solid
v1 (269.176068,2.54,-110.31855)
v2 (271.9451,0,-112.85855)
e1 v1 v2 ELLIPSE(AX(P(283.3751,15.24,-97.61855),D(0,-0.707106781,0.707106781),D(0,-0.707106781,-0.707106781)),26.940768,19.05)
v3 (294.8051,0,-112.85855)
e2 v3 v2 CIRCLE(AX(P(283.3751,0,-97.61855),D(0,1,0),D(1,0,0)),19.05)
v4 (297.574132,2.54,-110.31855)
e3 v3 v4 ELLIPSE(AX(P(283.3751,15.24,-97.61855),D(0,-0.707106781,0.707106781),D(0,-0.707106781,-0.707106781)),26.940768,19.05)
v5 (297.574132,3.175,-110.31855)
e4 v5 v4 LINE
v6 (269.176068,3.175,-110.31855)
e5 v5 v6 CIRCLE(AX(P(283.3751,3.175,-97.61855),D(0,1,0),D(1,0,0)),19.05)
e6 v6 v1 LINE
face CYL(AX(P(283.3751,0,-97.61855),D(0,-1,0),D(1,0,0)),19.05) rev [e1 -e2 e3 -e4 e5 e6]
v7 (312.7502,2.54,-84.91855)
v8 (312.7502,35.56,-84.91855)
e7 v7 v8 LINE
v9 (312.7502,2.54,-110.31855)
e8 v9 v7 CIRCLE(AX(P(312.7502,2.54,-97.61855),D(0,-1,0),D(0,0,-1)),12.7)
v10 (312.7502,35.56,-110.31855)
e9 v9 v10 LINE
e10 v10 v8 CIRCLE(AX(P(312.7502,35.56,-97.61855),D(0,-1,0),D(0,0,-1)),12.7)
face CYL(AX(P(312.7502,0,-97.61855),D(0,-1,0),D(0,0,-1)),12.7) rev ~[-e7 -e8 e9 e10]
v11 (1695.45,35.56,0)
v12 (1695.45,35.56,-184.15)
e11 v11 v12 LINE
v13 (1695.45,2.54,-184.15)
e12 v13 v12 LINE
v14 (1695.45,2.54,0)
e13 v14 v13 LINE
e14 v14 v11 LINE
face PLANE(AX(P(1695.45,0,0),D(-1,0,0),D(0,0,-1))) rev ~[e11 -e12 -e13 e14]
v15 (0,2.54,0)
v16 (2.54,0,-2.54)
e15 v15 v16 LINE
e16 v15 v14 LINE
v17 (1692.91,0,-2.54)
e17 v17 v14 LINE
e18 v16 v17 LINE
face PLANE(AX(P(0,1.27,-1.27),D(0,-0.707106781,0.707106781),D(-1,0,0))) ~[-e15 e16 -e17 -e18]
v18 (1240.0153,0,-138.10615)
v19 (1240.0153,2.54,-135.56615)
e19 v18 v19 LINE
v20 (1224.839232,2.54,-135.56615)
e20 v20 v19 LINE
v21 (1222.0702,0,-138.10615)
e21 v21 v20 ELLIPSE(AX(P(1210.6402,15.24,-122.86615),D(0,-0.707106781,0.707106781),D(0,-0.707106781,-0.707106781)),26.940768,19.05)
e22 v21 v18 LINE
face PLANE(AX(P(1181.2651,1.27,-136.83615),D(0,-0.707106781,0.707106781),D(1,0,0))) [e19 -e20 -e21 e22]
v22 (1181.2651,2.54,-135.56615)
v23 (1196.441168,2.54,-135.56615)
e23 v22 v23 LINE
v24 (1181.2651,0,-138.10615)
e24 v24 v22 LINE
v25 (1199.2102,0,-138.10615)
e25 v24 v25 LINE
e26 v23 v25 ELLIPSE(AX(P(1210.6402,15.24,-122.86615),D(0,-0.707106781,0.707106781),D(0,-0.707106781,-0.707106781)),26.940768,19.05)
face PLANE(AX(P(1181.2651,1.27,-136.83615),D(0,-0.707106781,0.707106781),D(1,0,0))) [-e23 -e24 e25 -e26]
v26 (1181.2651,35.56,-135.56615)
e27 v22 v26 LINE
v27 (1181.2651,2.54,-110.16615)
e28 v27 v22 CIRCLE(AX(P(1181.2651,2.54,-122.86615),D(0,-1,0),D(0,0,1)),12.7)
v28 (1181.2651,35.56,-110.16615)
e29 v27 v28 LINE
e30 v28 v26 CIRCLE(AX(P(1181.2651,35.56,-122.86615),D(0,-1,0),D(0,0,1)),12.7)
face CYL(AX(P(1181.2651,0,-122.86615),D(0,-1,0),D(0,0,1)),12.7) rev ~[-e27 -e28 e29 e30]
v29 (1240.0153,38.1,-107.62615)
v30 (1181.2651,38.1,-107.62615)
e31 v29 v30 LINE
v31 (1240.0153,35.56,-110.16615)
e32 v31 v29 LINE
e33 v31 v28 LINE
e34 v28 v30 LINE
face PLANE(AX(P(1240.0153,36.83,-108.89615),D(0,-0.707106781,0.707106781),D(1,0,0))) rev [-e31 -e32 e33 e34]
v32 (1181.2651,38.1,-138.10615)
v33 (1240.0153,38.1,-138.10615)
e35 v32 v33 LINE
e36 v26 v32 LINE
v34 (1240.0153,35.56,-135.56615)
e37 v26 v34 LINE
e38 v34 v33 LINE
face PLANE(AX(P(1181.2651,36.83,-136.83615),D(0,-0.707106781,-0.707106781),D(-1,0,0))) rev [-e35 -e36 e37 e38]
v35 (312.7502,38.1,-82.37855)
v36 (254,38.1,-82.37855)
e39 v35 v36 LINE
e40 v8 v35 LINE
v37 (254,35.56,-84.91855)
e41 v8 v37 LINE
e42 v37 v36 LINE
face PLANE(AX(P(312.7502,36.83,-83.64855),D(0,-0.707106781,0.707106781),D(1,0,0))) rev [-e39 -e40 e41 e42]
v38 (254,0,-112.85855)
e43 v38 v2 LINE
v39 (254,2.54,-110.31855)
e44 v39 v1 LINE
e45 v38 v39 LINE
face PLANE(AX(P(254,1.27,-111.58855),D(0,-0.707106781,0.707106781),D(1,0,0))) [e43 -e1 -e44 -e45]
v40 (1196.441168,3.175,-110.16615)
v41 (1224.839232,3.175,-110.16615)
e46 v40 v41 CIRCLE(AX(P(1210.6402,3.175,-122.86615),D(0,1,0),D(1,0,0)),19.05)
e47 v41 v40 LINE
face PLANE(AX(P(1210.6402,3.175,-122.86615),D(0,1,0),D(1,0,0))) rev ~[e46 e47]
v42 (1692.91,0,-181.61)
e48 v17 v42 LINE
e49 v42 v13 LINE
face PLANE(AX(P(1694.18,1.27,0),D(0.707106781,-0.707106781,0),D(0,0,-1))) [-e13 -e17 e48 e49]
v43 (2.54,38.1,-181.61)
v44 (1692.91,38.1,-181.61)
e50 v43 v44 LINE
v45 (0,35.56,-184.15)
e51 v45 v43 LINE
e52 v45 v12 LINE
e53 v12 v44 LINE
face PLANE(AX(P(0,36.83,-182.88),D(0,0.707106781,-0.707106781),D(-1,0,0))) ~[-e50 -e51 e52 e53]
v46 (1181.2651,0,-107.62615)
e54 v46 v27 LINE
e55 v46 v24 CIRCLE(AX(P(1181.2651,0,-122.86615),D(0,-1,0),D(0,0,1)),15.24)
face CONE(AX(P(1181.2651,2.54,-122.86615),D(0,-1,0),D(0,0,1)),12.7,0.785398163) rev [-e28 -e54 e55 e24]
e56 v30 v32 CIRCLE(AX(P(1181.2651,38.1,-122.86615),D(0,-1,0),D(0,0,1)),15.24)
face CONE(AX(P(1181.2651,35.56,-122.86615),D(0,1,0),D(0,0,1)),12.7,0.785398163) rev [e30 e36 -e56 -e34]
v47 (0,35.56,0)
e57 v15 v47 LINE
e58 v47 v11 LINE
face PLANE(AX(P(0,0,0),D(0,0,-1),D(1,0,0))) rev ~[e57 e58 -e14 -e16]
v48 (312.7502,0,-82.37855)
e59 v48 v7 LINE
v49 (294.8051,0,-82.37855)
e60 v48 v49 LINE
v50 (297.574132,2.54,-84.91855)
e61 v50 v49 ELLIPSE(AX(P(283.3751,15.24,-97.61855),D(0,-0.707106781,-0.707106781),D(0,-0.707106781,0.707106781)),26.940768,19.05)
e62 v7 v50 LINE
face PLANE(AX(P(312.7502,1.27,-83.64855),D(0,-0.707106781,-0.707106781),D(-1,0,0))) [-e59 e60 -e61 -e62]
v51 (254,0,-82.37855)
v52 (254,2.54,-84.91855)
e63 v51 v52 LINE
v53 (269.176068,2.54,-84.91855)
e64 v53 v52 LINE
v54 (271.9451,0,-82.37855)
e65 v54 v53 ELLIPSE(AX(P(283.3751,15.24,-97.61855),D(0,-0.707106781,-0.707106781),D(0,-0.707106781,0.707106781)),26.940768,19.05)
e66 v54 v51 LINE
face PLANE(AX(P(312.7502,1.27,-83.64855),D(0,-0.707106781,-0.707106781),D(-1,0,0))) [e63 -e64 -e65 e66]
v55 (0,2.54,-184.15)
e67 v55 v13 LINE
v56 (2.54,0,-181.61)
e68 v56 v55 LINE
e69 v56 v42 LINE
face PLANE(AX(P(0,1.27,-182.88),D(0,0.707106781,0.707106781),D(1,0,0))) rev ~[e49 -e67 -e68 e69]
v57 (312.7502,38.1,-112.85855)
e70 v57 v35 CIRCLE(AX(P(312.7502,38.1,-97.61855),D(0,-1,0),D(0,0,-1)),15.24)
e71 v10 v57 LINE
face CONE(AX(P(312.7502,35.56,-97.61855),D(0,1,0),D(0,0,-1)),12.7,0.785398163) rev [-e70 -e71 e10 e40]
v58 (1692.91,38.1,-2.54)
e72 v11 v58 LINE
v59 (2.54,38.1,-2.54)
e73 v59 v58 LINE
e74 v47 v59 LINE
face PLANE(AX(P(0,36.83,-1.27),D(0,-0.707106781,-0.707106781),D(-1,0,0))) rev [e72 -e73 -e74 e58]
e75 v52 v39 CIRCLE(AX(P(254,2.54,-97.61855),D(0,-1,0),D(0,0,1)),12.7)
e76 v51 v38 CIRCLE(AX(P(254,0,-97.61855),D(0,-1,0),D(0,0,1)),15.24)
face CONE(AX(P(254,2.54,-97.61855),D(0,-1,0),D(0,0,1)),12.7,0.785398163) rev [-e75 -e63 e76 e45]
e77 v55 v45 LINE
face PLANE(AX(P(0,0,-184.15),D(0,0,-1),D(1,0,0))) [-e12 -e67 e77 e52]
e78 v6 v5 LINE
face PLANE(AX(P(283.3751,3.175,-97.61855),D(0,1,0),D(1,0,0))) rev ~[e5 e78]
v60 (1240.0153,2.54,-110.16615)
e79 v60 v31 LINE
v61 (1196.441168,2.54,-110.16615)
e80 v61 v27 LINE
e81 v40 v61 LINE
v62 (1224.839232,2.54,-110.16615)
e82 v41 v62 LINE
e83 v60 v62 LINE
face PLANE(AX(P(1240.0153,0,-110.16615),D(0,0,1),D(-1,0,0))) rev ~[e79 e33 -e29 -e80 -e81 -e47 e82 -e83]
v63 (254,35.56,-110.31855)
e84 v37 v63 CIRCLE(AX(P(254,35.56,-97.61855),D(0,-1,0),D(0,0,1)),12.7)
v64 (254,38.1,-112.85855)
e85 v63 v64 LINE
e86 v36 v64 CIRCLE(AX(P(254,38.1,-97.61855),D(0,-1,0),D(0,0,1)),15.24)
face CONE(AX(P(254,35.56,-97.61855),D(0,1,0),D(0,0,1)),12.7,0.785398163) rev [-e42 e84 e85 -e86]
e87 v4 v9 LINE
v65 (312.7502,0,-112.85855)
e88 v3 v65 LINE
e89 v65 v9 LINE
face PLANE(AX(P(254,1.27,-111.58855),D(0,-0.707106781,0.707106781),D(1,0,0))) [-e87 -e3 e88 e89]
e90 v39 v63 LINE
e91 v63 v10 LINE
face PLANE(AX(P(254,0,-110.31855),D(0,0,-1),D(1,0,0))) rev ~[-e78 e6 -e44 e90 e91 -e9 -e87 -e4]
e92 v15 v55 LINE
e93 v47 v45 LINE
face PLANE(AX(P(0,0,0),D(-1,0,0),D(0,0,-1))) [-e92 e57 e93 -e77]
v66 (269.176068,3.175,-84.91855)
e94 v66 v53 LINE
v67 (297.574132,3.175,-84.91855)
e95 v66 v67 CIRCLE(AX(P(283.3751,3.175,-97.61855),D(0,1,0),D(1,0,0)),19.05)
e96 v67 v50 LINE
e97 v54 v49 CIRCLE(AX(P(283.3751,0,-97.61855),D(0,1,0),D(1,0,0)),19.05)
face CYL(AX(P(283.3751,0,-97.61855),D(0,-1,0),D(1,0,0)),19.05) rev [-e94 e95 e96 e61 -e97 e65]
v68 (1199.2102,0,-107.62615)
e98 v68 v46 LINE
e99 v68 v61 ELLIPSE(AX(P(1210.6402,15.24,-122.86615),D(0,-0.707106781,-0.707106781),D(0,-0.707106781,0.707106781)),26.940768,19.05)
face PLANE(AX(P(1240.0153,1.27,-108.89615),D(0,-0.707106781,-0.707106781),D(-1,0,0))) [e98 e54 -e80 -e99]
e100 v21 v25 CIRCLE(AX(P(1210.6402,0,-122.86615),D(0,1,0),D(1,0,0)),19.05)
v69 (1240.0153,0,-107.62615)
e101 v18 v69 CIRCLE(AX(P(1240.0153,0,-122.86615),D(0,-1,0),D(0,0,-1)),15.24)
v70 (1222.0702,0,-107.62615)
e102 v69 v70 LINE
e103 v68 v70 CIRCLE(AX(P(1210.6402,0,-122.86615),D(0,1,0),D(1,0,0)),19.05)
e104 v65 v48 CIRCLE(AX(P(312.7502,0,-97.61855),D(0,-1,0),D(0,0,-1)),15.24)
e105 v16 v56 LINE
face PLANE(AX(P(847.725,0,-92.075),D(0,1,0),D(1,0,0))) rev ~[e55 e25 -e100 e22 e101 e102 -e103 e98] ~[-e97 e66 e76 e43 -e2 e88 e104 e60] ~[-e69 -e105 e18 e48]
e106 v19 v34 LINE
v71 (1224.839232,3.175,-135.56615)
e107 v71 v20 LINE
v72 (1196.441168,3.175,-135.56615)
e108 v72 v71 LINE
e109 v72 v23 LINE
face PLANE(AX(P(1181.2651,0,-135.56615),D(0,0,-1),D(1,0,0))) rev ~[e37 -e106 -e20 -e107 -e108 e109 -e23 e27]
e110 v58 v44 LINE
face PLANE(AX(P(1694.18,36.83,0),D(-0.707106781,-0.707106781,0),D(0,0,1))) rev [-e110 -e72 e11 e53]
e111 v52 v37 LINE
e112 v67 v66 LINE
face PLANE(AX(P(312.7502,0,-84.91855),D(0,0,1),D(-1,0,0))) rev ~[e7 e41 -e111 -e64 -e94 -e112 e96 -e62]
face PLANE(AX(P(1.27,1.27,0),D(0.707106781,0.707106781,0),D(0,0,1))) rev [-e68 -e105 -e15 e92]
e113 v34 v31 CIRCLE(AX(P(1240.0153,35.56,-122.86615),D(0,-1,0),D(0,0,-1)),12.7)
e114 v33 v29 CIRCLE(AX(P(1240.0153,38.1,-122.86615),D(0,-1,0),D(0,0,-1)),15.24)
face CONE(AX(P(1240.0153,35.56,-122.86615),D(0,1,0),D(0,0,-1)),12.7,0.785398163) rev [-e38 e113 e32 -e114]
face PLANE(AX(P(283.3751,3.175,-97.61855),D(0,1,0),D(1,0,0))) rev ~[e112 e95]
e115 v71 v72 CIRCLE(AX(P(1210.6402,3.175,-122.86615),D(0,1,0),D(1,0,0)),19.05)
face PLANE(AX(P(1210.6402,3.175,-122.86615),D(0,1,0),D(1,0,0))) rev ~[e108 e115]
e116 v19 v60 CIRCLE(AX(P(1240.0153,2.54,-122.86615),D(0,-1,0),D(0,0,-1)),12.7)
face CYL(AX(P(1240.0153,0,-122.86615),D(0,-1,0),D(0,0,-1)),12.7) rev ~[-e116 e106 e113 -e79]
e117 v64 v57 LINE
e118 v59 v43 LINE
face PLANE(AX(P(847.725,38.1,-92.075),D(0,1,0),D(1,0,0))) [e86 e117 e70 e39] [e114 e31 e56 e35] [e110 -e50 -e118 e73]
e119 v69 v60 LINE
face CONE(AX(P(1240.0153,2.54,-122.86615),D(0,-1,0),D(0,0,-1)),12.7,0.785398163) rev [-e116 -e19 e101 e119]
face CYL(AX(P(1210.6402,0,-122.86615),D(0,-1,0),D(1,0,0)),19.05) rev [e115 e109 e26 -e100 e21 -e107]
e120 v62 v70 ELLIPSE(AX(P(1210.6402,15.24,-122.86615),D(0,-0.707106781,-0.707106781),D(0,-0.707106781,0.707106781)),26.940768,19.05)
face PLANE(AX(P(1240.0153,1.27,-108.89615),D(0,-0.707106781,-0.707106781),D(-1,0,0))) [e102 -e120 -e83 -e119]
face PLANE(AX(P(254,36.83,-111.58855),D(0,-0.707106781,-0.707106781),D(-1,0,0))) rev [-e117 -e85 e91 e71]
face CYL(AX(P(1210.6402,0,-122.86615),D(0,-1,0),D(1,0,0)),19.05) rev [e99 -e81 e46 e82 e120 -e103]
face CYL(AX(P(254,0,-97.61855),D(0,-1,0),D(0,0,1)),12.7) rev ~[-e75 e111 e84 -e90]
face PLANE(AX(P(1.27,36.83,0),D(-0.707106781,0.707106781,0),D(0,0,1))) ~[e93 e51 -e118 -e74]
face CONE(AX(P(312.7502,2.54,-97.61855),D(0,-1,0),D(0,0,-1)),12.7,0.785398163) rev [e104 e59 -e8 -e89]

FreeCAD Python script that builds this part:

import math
import FreeCAD as App
import Part
import Sketcher
from FreeCAD import Vector
Q = App.Units.Quantity


def edges_at(feature, points):
    """Names of the edges that pass closest to the given points."""
    edges = feature.Shape.Edges
    near = lambda p: min(range(len(edges)), key=lambda i: edges[i].distToShape(Part.Vertex(*p))[0])
    return sorted({f"Edge{near(p) + 1}" for p in points})


def add_polygon(sketch, points):
    """Adds a closed chain of lines whose ends are joined by coincident constraints."""
    first, n = sketch.GeometryCount, len(points)
    for a, b in zip(points, points[1:] + points[:1]):
        sketch.addGeometry(Part.LineSegment(App.Vector(*a, 0), App.Vector(*b, 0)), False)
    for i in range(n):
        sketch.addConstraint(Sketcher.Constraint("Coincident", first + i, 2, first + (i + 1) % n, 1))

doc = App.newDocument("Part")
body = doc.addObject("PartDesign::Body", "Body")

# Sketch on XZ plane
sketch1 = body.newObject("Sketcher::SketchObject", "Sketch")
sketch1.AttachmentSupport = (doc.getObject("XZ_Plane"), [""])
sketch1.MapMode = "FlatFace"
add_polygon(sketch1, [(0, -184), (0, 0), (1695, 0), (1695, -184)])  # lines 0-3
sketch1.addGeometry(Part.ArcOfCircle(Part.Circle(Vector(254, -98, 0), Vector(0, 0, 1), 13), math.radians(90), math.radians(270)), False)  # 4
sketch1.addGeometry(Part.LineSegment(Vector(254, -110, 0), Vector(313, -110, 0)), False)  # 5
sketch1.addGeometry(Part.ArcOfCircle(Part.Circle(Vector(313, -98, 0), Vector(0, 0, 1), 13), math.radians(-90), math.radians(90)), False)  # 6
sketch1.addGeometry(Part.LineSegment(Vector(313, -85, 0), Vector(254, -85, 0)), False)  # 7
sketch1.addGeometry(Part.ArcOfCircle(Part.Circle(Vector(1240, -123, 0), Vector(0, 0, 1), 13), math.radians(-90), math.radians(90)), False)  # 8
sketch1.addGeometry(Part.LineSegment(Vector(1240, -110, 0), Vector(1181, -110, 0)), False)  # 9
sketch1.addGeometry(Part.ArcOfCircle(Part.Circle(Vector(1181, -123, 0), Vector(0, 0, 1), 13), math.radians(90), math.radians(270)), False)  # 10
sketch1.addGeometry(Part.LineSegment(Vector(1181, -136, 0), Vector(1240, -136, 0)), False)  # 11
sketch1.addConstraint(Sketcher.Constraint("Tangent", 4, 2, 5, 1))
sketch1.addConstraint(Sketcher.Constraint("Tangent", 5, 2, 6, 1))
sketch1.addConstraint(Sketcher.Constraint("Tangent", 6, 2, 7, 1))
sketch1.addConstraint(Sketcher.Constraint("Tangent", 7, 2, 4, 1))
sketch1.addConstraint(Sketcher.Constraint("Tangent", 8, 2, 9, 1))
sketch1.addConstraint(Sketcher.Constraint("Tangent", 9, 2, 10, 1))
sketch1.addConstraint(Sketcher.Constraint("Tangent", 10, 2, 11, 1))
sketch1.addConstraint(Sketcher.Constraint("Tangent", 11, 2, 8, 1))
sketch1.addConstraint(Sketcher.Constraint("Vertical", 0))
sketch1.addConstraint(Sketcher.Constraint("Horizontal", 1))
sketch1.addConstraint(Sketcher.Constraint("Vertical", 2))
sketch1.addConstraint(Sketcher.Constraint("Horizontal", 3))
sketch1.addConstraint(Sketcher.Constraint("Horizontal", 5))
sketch1.addConstraint(Sketcher.Constraint("Horizontal", 7))
sketch1.addConstraint(Sketcher.Constraint("Horizontal", 9))
sketch1.addConstraint(Sketcher.Constraint("Horizontal", 11))
sketch1.addConstraint(Sketcher.Constraint("Coincident", 0, 2, -1, 1))
sketch1.addConstraint(Sketcher.Constraint("Equal", 6, 8))
sketch1.addConstraint(Sketcher.Constraint("Equal", 7, 9))
sketch1.addConstraint(Sketcher.Constraint("Radius", 4, Q("0.5 in")))
sketch1.addConstraint(Sketcher.Constraint("DistanceX", -1, 1, 4, 3, Q("10 in")))
sketch1.addConstraint(Sketcher.Constraint("DistanceX", 1, 1, 1, 2, Q("66.75 in")))
sketch1.addConstraint(Sketcher.Constraint("DistanceY", 0, 1, 0, 2, Q("7.25 in")))
sketch1.addConstraint(Sketcher.Constraint("DistanceX", 5, 1, 5, 2, Q("2.313 in")))
sketch1.addConstraint(Sketcher.Constraint("DistanceY", 8, 3, 6, 3, Q("0.994 in")))
sketch1.addConstraint(Sketcher.Constraint("DistanceX", -1, 1, 8, 3, Q("48.8195 in")))
sketch1.addConstraint(Sketcher.Constraint("DistanceY", 4, 3, -1, 1, Q("97.61855 mm")))
pad1 = body.newObject("PartDesign::Pad", "Pad")
pad1.Profile = sketch1
pad1.Length = Q("1.5 in")
pad1.Reversed = True
doc.recompute()

chamfer = body.newObject("PartDesign::Chamfer", "Chamfer")
chamfer.Base = (pad1, edges_at(pad1, [
    (1695.45, 38.1, -92.075),
    (1252.715, 38.1, -122.866),
    (847.725, 38.1, -184.15),
    (1210.64, 38.1, -135.566),
    (1168.565, 38.1, -122.866),
    (1210.64, 38.1, -110.166),
    (325.45, 38.1, -97.619),
    (283.375, 38.1, -110.319),
    (241.3, 38.1, -97.619),
    (283.375, 38.1, -84.919),
    (0, 38.1, -92.075),
    (847.725, 38.1, 0),
]))
chamfer.Size = Q("0.1 in")
doc.recompute()

chamfer2 = body.newObject("PartDesign::Chamfer", "Chamfer001")
chamfer2.Base = (chamfer, edges_at(chamfer, [
    (1252.715, 0, -122.866),
    (1210.64, 0, -135.566),
    (1168.565, 0, -122.866),
    (1210.64, 0, -110.166),
    (325.45, 0, -97.619),
    (283.375, 0, -110.319),
    (241.3, 0, -97.619),
    (283.375, 0, -84.919),
    (847.725, 0, -184.15),
    (1695.45, 0, -92.075),
    (847.725, 0, 0),
    (0, 0, -92.075),
]))
chamfer2.Size = Q("0.1 in")

# Sketch on XZ plane
sketch2 = body.newObject("Sketcher::SketchObject", "Sketch001")
sketch2.AttachmentSupport = (doc.getObject("XZ_Plane"), [""])
sketch2.MapMode = "FlatFace"
sketch2.addGeometry(Part.Circle(Vector(283, -98, 0), Vector(0, 0, 1), 19), False)
sketch2.addGeometry(Part.Circle(Vector(1211, -123, 0), Vector(0, 0, 1), 19), False)
sketch2.addConstraint(Sketcher.Constraint("Equal", 0, 1))
sketch2.addConstraint(Sketcher.Constraint("Diameter", 0, Q("1.5 in")))
sketch2.addConstraint(Sketcher.Constraint("DistanceX", -1, 1, 1, 3, Q("47.663 in")))
sketch2.addConstraint(Sketcher.Constraint("DistanceY", 1, 3, 0, 3, Q("0.994 in")))
sketch2.addConstraint(Sketcher.Constraint("DistanceX", -1, 1, 0, 3, Q("11.1565 in")))
sketch2.addConstraint(Sketcher.Constraint("DistanceY", 0, 3, -1, 1, Q("97.61855 mm")))
pocket1 = body.newObject("PartDesign::Pocket", "Pocket")
pocket1.Profile = sketch2
pocket1.Length = Q("0.125 in")

doc.recompute()
